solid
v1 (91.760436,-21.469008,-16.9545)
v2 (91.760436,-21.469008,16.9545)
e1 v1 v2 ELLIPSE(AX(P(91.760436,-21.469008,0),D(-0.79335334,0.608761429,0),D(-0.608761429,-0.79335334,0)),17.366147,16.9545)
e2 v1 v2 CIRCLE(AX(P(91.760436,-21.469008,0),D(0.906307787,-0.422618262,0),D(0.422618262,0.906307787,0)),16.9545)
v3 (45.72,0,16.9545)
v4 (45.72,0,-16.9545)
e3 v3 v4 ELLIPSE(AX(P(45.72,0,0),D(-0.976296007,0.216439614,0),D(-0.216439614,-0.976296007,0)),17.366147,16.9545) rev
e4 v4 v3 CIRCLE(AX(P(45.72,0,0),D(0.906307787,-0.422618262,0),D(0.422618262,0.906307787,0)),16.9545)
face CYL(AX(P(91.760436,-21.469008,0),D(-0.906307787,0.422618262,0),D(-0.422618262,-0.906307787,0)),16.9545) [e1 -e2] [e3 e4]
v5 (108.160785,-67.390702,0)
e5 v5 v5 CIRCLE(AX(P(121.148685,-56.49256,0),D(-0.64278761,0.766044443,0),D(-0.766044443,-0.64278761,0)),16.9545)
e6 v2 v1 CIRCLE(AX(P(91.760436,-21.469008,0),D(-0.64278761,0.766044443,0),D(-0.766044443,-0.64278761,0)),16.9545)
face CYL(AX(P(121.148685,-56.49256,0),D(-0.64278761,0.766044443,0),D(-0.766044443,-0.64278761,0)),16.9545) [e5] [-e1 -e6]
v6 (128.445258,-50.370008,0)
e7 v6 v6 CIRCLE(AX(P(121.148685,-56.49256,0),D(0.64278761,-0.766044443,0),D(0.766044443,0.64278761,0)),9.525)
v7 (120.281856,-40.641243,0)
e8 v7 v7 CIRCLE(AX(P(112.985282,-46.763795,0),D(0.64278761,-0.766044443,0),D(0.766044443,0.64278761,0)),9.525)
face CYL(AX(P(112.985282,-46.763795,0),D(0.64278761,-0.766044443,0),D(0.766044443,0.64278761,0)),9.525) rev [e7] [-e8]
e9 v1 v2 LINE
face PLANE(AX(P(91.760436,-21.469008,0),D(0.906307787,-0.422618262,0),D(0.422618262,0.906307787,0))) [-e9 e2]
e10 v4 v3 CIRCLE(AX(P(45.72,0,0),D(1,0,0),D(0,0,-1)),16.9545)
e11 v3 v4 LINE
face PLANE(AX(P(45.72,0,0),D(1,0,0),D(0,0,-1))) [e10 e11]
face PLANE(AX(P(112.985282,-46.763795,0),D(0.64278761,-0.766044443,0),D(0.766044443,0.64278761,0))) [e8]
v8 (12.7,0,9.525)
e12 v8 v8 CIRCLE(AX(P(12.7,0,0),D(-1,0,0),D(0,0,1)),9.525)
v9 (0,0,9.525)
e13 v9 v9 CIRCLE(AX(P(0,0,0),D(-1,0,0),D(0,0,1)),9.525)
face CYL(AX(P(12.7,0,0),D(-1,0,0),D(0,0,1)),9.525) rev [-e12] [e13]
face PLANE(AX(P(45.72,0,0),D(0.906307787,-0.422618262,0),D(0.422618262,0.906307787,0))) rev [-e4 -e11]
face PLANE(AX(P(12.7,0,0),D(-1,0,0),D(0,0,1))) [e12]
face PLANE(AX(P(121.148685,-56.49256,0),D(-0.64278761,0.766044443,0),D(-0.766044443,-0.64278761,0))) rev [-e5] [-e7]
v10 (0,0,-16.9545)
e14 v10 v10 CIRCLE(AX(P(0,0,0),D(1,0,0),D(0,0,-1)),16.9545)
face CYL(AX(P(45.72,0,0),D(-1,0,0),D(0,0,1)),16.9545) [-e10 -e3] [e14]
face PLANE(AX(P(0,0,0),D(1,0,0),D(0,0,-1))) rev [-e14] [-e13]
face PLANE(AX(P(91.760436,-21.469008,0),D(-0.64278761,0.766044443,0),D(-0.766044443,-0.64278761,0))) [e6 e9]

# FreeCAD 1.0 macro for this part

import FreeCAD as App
import Part
import Sketcher

V = App.Vector
Q = App.Units.Quantity

doc = App.newDocument("Part")
params = doc.addObject("Spreadsheet::Sheet", "Params")
for row, (alias, value) in enumerate([
    ("sketch1_diameter", "1.335 in"),
    ("pad1_length", "1.8 in"),
    ("sketch2_diameter", "1.335 in"),
    ("pad2_length", "2 in"),
    ("sketch3_diameter", "1.335 in"),
    ("pad3_length", "1.8 in"),
    ("sketch4_diameter", "0.75 in"),
    ("pocket1_length", "0.5 in"),
    ("sketch5_diameter", "0.75 in"),
    ("pocket2_length", "0.5 in"),
], start=1):
    params.set(f"A{row}", alias)
    params.set(f"B{row}", "=" + value)
    params.setAlias(f"B{row}", alias)

body = doc.addObject("PartDesign::Body", "Body")

sketch1 = body.newObject("Sketcher::SketchObject", "Sketch")
sketch1.AttachmentSupport = (doc.getObject("YZ_Plane"), [""])
sketch1.MapMode = "FlatFace"
sketch1.addGeometry(Part.Circle(V(0, 0, 0), V(0, 0, 1), 17), False)
sketch1.addConstraint([
    Sketcher.Constraint("Coincident", 0, 3, -1, 1),
    Sketcher.Constraint("Diameter", 0, Q("1.335 in")),
])
sketch1.setExpression("Constraints[1]", "Params.sketch1_diameter")
pad1 = body.newObject("PartDesign::Pad", "Pad")
pad1.Profile = sketch1
pad1.setExpression("Length", "Params.pad1_length")

sketch2 = body.newObject("Sketcher::SketchObject", "Sketch001")
sketch2.Placement = App.Placement(V(45.72, 0, 0), App.Rotation(V(0, 0, -1), V(0.422618262, 0.906307787, 0), V(0.906307787, -0.422618262, 0), "ZXY"))
sketch2.addGeometry(Part.Circle(V(0, 0, 0), V(0, 0, 1), 17), False)
sketch2.addConstraint([
    Sketcher.Constraint("Coincident", 0, 3, -1, 1),
    Sketcher.Constraint("Diameter", 0, Q("1.335 in")),
])
sketch2.setExpression("Constraints[1]", "Params.sketch2_diameter")
pad2 = body.newObject("PartDesign::Pad", "Pad001")
pad2.Profile = sketch2
pad2.setExpression("Length", "Params.pad2_length")

sketch3 = body.newObject("Sketcher::SketchObject", "Sketch002")
sketch3.Placement = App.Placement(V(91.760436, -21.469008, 0), App.Rotation(V(0.766044443, 0.64278761, 0), V(0, 0, -1), V(-0.64278761, 0.766044443, 0), "ZXY"))
sketch3.addGeometry(Part.Circle(V(0, 0, 0), V(0, 0, 1), 17), False)
sketch3.addConstraint([
    Sketcher.Constraint("Coincident", 0, 3, -1, 1),
    Sketcher.Constraint("Diameter", 0, Q("1.335 in")),
])
sketch3.setExpression("Constraints[1]", "Params.sketch3_diameter")
pad3 = body.newObject("PartDesign::Pad", "Pad002")
pad3.Profile = sketch3
pad3.setExpression("Length", "Params.pad3_length")
pad3.Reversed = True

sketch4 = body.newObject("Sketcher::SketchObject", "Sketch003")
sketch4.Placement = App.Placement(V(77.872874, -92.805277, 0), App.Rotation(V(0.766044443, 0.64278761, 0), V(0, 0, 1), V(0.64278761, -0.766044443, 0), "ZXY"))
sketch4.addGeometry(Part.Circle(V(56, 0, 0), V(0, 0, 1), 10), False)
sketch4.addConstraint([
    Sketcher.Constraint("PointOnObject", 0, 3, -1),
    Sketcher.Constraint("Diameter", 0, Q("0.75 in")),
    Sketcher.Constraint("DistanceX", -1, 1, 0, 3, Q("56.49256 mm")),
])
sketch4.setExpression("Constraints[1]", "Params.sketch4_diameter")
pocket1 = body.newObject("PartDesign::Pocket", "Pocket")
pocket1.Profile = sketch4
pocket1.setExpression("Length", "Params.pocket1_length")

sketch5 = body.newObject("Sketcher::SketchObject", "Sketch004")
sketch5.AttachmentSupport = (doc.getObject("YZ_Plane"), [""])
sketch5.MapMode = "FlatFace"
sketch5.addGeometry(Part.Circle(V(0, 0, 0), V(0, 0, 1), 10), False)
sketch5.addConstraint([
    Sketcher.Constraint("Coincident", 0, 3, -1, 1),
    Sketcher.Constraint("Diameter", 0, Q("0.75 in")),
])
sketch5.setExpression("Constraints[1]", "Params.sketch5_diameter")
pocket2 = body.newObject("PartDesign::Pocket", "Pocket001")
pocket2.Profile = sketch5
pocket2.setExpression("Length", "Params.pocket2_length")
pocket2.Reversed = True

doc.recompute()
